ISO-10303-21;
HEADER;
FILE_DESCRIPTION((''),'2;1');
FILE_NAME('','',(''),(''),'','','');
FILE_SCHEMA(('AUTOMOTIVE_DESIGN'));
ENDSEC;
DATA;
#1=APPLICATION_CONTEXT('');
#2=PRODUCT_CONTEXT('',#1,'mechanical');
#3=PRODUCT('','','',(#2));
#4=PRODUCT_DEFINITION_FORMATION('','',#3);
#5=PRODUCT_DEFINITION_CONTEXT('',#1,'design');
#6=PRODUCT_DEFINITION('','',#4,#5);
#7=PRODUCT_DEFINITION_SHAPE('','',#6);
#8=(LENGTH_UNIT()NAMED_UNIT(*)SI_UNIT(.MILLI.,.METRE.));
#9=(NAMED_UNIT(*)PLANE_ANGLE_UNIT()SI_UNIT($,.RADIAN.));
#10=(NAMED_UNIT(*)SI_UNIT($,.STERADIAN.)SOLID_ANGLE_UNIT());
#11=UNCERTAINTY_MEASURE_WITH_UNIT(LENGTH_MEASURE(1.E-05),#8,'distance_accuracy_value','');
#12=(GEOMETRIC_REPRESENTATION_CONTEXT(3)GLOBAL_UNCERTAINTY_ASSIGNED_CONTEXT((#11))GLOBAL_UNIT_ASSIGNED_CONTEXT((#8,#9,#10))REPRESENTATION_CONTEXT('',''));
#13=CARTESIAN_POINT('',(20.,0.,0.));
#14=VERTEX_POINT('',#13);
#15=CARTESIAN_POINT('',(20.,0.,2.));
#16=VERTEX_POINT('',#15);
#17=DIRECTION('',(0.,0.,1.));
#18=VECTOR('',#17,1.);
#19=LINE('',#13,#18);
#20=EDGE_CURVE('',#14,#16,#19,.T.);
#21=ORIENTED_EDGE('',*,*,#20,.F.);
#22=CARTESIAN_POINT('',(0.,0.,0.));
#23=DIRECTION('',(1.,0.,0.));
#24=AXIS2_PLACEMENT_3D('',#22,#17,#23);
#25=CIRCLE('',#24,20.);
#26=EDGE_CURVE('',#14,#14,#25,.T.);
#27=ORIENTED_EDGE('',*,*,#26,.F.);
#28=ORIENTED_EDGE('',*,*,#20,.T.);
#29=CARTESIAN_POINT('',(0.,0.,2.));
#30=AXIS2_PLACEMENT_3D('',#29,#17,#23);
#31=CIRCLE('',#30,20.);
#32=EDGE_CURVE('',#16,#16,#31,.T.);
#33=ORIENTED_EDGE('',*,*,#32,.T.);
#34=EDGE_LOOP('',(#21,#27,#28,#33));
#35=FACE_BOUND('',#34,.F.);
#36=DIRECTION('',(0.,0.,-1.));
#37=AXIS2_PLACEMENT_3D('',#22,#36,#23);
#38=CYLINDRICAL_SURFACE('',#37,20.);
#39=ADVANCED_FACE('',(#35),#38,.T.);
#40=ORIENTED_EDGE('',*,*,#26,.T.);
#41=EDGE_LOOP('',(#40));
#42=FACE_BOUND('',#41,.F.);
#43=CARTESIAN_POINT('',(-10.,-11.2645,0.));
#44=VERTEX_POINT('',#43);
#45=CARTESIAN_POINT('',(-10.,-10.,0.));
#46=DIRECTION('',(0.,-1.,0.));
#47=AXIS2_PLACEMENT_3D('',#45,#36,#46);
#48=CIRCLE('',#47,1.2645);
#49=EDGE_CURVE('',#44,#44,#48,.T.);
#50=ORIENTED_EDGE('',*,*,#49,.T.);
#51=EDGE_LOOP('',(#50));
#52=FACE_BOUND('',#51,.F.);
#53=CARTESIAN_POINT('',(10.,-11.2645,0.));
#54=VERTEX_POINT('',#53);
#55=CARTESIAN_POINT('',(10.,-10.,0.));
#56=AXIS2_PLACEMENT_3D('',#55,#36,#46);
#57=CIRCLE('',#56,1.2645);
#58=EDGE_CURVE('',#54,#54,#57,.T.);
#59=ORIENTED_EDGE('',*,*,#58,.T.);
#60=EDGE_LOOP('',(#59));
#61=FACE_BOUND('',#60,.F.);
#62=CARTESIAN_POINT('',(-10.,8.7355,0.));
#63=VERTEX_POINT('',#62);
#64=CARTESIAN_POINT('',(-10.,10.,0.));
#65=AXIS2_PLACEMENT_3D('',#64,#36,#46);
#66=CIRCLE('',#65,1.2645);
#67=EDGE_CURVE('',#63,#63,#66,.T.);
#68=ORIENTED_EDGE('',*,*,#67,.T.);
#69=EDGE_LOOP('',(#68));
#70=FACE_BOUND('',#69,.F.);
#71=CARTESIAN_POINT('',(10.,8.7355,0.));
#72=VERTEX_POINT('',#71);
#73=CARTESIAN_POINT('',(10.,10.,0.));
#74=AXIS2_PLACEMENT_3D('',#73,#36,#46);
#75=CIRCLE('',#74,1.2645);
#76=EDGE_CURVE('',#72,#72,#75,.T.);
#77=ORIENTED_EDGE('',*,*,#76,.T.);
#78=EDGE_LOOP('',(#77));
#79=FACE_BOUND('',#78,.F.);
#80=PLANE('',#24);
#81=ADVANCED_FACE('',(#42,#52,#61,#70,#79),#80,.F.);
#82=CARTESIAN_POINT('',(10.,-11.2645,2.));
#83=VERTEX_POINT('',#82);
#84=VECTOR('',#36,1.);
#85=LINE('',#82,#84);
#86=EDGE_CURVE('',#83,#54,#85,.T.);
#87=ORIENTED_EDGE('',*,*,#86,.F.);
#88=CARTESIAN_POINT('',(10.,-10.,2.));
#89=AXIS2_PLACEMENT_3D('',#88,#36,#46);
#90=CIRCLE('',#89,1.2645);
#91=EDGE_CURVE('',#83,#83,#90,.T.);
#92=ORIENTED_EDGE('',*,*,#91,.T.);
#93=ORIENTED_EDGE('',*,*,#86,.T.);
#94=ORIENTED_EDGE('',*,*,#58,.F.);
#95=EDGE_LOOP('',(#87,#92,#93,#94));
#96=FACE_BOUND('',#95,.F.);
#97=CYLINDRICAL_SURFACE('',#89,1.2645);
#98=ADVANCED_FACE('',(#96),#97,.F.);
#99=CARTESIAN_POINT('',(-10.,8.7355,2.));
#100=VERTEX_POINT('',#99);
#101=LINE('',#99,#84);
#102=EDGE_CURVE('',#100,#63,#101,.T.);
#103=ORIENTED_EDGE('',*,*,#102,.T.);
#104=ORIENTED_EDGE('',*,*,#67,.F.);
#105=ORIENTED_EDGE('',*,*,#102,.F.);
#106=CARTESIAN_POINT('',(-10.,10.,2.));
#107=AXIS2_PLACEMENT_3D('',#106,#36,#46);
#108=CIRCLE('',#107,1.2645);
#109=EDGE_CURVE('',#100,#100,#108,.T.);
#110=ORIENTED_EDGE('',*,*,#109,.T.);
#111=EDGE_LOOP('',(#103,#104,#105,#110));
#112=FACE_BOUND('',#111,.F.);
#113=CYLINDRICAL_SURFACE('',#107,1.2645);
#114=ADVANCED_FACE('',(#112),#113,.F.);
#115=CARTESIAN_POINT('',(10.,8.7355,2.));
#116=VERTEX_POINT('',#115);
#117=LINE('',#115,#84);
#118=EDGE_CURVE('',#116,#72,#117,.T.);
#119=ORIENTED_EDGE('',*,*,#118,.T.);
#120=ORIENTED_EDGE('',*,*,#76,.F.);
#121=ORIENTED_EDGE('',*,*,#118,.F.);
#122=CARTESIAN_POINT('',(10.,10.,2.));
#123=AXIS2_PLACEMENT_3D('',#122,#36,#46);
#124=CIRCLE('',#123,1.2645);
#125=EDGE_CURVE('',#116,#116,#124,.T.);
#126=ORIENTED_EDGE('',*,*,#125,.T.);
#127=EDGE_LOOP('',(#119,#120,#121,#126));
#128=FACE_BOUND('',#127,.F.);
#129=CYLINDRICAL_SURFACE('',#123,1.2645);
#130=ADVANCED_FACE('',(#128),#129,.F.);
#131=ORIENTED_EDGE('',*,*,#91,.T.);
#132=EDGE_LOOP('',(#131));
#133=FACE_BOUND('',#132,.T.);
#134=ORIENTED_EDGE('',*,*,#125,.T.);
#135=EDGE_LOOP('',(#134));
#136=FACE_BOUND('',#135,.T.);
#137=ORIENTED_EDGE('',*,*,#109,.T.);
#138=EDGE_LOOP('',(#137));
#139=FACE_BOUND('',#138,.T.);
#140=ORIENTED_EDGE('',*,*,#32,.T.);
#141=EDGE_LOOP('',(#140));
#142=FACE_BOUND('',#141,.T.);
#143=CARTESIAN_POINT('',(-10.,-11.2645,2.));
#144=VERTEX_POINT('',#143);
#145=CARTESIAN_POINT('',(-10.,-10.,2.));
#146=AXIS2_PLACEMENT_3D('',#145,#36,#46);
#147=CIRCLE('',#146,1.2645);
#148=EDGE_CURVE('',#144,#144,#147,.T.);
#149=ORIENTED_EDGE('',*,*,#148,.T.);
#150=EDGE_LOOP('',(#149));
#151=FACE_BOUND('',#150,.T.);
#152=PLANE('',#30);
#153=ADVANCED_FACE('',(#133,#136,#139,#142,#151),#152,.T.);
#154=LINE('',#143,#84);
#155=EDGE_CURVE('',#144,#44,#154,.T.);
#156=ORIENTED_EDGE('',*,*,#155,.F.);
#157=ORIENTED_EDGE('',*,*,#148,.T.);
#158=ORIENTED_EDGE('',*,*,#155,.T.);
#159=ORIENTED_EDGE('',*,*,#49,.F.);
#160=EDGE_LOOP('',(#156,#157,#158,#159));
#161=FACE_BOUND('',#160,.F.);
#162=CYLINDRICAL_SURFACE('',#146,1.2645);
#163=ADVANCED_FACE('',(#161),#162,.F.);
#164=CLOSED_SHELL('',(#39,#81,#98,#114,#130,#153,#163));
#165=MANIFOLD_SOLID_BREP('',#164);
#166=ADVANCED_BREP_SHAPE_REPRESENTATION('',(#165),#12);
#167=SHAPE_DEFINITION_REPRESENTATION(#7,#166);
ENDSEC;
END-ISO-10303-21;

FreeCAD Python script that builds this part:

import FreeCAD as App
import Part
import Sketcher
from FreeCAD import Vector

doc = App.newDocument("Part")
params = doc.addObject("Spreadsheet::Sheet", "Params")
for row, (alias, value) in enumerate([
    ("sketch1_diameter", "40 mm"),
    ("pad1_length", "2 mm"),
    ("hole_diameter", "2.529 mm"),
    ("hole_depth", "2 mm"),
], start=1):
    params.set(f"A{row}", alias)
    params.set(f"B{row}", "=" + value)
    params.setAlias(f"B{row}", alias)

body = doc.addObject("PartDesign::Body", "Body")

# Sketch on XY plane
sketch1 = body.newObject("Sketcher::SketchObject", "Sketch")
sketch1.AttachmentSupport = (doc.getObject("XY_Plane"), [""])
sketch1.MapMode = "FlatFace"
sketch1.addGeometry(Part.Circle(Vector(0, 0, 0), Vector(0, 0, 1), 20), False)
sketch1.addConstraint([
    Sketcher.Constraint("Coincident", 0, 3, -1, 1),
    Sketcher.Constraint("Diameter", 0, 40.0),
])
sketch1.setExpression("Constraints[1]", "Params.sketch1_diameter")
pad1 = body.newObject("PartDesign::Pad", "Pad")
pad1.Profile = sketch1
pad1.setExpression("Length", "Params.pad1_length")

# Sketch on XY plane
sketch2 = body.newObject("Sketcher::SketchObject", "Sketch001")
sketch2.AttachmentSupport = (doc.getObject("XY_Plane"), [""])
sketch2.MapMode = "FlatFace"
sketch2.AttachmentOffset = App.Placement(Vector(0, 0, 2), App.Rotation())
sketch2.addGeometry([
    Part.Circle(Vector(-10, -10, 0), Vector(0, 0, 1), 1.3),
    Part.Circle(Vector(-10, 10, 0), Vector(0, 0, 1), 1.3),
    Part.Circle(Vector(10, 10, 0), Vector(0, 0, 1), 1.3),
    Part.Circle(Vector(10, -10, 0), Vector(0, 0, 1), 1.3),
], False)
sketch2.addConstraint([
    Sketcher.Constraint("Equal", 0, 1),
    Sketcher.Constraint("Equal", 1, 2),
    Sketcher.Constraint("Equal", 2, 3),
    Sketcher.Constraint("Symmetric", 0, 3, 2, 3, -1, 1),
    Sketcher.Constraint("Symmetric", 1, 3, 3, 3, -1, 1),
    Sketcher.Constraint("Symmetric", 1, 3, 2, 3, -2),
    Sketcher.Constraint("Diameter", 0, 2.529),
    Sketcher.Constraint("DistanceX", 0, 3, -1, 1, 10.0),
    Sketcher.Constraint("DistanceY", 0, 3, -1, 1, 10.0),
])
doc.recompute()
hole = body.newObject("PartDesign::Hole", "Hole")
hole.Profile = sketch2
hole.ThreadType = "None"
hole.setExpression("Diameter", "Params.hole_diameter")
hole.DepthType = "Dimension"
hole.setExpression("Depth", "Params.hole_depth")
hole.DrillPoint = "Angled"
hole.DrillPointAngle = 118

doc.recompute()
